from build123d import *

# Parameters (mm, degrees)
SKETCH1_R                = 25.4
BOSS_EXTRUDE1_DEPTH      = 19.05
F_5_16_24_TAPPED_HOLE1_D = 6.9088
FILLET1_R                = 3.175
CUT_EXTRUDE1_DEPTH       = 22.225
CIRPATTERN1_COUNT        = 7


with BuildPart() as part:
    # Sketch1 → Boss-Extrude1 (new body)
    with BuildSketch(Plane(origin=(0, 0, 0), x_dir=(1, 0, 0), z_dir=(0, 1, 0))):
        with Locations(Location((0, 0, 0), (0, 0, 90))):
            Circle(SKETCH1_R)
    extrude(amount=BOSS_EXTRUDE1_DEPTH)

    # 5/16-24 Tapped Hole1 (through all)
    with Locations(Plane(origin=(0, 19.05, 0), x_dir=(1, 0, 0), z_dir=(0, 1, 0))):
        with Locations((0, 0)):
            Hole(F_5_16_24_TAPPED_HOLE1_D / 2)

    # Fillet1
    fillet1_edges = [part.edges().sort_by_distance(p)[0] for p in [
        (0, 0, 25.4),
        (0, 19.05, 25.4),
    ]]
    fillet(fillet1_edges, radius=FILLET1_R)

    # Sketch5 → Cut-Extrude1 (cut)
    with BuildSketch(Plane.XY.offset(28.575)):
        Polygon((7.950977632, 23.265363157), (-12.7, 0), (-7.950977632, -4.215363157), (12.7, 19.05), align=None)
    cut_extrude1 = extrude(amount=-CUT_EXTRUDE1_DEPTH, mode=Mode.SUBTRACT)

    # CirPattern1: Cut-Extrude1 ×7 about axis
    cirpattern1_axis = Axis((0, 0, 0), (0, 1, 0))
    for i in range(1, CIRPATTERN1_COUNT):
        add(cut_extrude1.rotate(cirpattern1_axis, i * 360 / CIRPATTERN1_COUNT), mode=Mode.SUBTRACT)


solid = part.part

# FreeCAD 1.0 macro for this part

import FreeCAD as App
import Part
import Sketcher
from FreeCAD import Vector
Q = App.Units.Quantity


def edges_at(feature, points):
    """Names of the edges that pass closest to the given points."""
    edges = feature.Shape.Edges
    near = lambda p: min(range(len(edges)), key=lambda i: edges[i].distToShape(Part.Vertex(*p))[0])
    return sorted({f"Edge{near(p) + 1}" for p in points})


def add_polygon(sketch, points):
    """Adds a closed chain of lines whose ends are joined by coincident constraints."""
    first, n = sketch.GeometryCount, len(points)
    for a, b in zip(points, points[1:] + points[:1]):
        sketch.addGeometry(Part.LineSegment(App.Vector(*a, 0), App.Vector(*b, 0)), False)
    for i in range(n):
        sketch.addConstraint(Sketcher.Constraint("Coincident", first + i, 2, first + (i + 1) % n, 1))

doc = App.newDocument("Part")
body = doc.addObject("PartDesign::Body", "Body")

# Sketch on XZ plane
sketch1 = body.newObject("Sketcher::SketchObject", "Sketch")
sketch1.AttachmentSupport = (doc.getObject("XZ_Plane"), [""])
sketch1.MapMode = "FlatFace"
sketch1.addGeometry(Part.Circle(Vector(0, 0, 0), Vector(0, 0, 1), 25), False)
sketch1.addConstraint([
    Sketcher.Constraint("Coincident", 0, 3, -1, 1),
    Sketcher.Constraint("Diameter", 0, Q("2 in")),
])
pad1 = body.newObject("PartDesign::Pad", "Pad")
pad1.Profile = sketch1
pad1.Length = Q("0.75 in")
pad1.Reversed = True

# Sketch on XZ plane
sketch2 = body.newObject("Sketcher::SketchObject", "Sketch001")
sketch2.AttachmentSupport = (doc.getObject("XZ_Plane"), [""])
sketch2.MapMode = "FlatFace"
sketch2.AttachmentOffset = App.Placement(Vector(0, 0, -0.75 * 25.4), App.Rotation())
sketch2.addGeometry(Part.Circle(Vector(0, 0, 0), Vector(0, 0, 1), 3.5), False)
sketch2.addConstraint([
    Sketcher.Constraint("Coincident", 0, 3, -1, 1),
    Sketcher.Constraint("Diameter", 0, Q("0.272 in")),
])
doc.recompute()
hole = body.newObject("PartDesign::Hole", "Hole")
hole.Profile = sketch2
hole.ThreadType = "None"
hole.Diameter = Q("0.272 in")
hole.DepthType = "ThroughAll"
hole.Reversed = True
doc.recompute()

fillet = body.newObject("PartDesign::Fillet", "Fillet")
fillet.Base = (hole, edges_at(hole, [(0, 0, 25.4), (0, 19.05, 25.4)]))
fillet.Radius = Q("0.125 in")

# Sketch on XY plane
sketch3 = body.newObject("Sketcher::SketchObject", "Sketch002")
sketch3.AttachmentSupport = (doc.getObject("XY_Plane"), [""])
sketch3.MapMode = "FlatFace"
sketch3.AttachmentOffset = App.Placement(Vector(0, 0, 1.125 * 25.4), App.Rotation())
add_polygon(sketch3, [(8, 23), (-13, 0), (-8, -4), (13, 19)])  # lines 0-3
sketch3.addConstraint([
    Sketcher.Constraint("PointOnObject", 0, 2, -1),
    Sketcher.Constraint("Perpendicular", 0, 1),
    Sketcher.Constraint("Perpendicular", 1, 2),
    Sketcher.Constraint("Perpendicular", 2, 3),
    Sketcher.Constraint("DistanceX", 0, 2, 2, 2, Q("1 in")),
    Sketcher.Constraint("DistanceX", 0, 2, -1, 1, Q("0.5 in")),
    Sketcher.Constraint("Distance", 1, Q("0.25 in")),
    Sketcher.Constraint("DistanceY", -1, 1, 2, 2, Q("0.75 in")),
])
pocket1 = body.newObject("PartDesign::Pocket", "Pocket")
pocket1.Profile = sketch3
pocket1.Length = Q("0.875 in")
doc.recompute()

polarpattern = body.newObject("PartDesign::PolarPattern", "PolarPattern")
polarpattern.Originals = [pocket1]
polarpattern.Axis = (doc.getObject("Y_Axis"), [""])
polarpattern.Angle = 360
polarpattern.Occurrences = 7
body.Tip = polarpattern

doc.recompute()
